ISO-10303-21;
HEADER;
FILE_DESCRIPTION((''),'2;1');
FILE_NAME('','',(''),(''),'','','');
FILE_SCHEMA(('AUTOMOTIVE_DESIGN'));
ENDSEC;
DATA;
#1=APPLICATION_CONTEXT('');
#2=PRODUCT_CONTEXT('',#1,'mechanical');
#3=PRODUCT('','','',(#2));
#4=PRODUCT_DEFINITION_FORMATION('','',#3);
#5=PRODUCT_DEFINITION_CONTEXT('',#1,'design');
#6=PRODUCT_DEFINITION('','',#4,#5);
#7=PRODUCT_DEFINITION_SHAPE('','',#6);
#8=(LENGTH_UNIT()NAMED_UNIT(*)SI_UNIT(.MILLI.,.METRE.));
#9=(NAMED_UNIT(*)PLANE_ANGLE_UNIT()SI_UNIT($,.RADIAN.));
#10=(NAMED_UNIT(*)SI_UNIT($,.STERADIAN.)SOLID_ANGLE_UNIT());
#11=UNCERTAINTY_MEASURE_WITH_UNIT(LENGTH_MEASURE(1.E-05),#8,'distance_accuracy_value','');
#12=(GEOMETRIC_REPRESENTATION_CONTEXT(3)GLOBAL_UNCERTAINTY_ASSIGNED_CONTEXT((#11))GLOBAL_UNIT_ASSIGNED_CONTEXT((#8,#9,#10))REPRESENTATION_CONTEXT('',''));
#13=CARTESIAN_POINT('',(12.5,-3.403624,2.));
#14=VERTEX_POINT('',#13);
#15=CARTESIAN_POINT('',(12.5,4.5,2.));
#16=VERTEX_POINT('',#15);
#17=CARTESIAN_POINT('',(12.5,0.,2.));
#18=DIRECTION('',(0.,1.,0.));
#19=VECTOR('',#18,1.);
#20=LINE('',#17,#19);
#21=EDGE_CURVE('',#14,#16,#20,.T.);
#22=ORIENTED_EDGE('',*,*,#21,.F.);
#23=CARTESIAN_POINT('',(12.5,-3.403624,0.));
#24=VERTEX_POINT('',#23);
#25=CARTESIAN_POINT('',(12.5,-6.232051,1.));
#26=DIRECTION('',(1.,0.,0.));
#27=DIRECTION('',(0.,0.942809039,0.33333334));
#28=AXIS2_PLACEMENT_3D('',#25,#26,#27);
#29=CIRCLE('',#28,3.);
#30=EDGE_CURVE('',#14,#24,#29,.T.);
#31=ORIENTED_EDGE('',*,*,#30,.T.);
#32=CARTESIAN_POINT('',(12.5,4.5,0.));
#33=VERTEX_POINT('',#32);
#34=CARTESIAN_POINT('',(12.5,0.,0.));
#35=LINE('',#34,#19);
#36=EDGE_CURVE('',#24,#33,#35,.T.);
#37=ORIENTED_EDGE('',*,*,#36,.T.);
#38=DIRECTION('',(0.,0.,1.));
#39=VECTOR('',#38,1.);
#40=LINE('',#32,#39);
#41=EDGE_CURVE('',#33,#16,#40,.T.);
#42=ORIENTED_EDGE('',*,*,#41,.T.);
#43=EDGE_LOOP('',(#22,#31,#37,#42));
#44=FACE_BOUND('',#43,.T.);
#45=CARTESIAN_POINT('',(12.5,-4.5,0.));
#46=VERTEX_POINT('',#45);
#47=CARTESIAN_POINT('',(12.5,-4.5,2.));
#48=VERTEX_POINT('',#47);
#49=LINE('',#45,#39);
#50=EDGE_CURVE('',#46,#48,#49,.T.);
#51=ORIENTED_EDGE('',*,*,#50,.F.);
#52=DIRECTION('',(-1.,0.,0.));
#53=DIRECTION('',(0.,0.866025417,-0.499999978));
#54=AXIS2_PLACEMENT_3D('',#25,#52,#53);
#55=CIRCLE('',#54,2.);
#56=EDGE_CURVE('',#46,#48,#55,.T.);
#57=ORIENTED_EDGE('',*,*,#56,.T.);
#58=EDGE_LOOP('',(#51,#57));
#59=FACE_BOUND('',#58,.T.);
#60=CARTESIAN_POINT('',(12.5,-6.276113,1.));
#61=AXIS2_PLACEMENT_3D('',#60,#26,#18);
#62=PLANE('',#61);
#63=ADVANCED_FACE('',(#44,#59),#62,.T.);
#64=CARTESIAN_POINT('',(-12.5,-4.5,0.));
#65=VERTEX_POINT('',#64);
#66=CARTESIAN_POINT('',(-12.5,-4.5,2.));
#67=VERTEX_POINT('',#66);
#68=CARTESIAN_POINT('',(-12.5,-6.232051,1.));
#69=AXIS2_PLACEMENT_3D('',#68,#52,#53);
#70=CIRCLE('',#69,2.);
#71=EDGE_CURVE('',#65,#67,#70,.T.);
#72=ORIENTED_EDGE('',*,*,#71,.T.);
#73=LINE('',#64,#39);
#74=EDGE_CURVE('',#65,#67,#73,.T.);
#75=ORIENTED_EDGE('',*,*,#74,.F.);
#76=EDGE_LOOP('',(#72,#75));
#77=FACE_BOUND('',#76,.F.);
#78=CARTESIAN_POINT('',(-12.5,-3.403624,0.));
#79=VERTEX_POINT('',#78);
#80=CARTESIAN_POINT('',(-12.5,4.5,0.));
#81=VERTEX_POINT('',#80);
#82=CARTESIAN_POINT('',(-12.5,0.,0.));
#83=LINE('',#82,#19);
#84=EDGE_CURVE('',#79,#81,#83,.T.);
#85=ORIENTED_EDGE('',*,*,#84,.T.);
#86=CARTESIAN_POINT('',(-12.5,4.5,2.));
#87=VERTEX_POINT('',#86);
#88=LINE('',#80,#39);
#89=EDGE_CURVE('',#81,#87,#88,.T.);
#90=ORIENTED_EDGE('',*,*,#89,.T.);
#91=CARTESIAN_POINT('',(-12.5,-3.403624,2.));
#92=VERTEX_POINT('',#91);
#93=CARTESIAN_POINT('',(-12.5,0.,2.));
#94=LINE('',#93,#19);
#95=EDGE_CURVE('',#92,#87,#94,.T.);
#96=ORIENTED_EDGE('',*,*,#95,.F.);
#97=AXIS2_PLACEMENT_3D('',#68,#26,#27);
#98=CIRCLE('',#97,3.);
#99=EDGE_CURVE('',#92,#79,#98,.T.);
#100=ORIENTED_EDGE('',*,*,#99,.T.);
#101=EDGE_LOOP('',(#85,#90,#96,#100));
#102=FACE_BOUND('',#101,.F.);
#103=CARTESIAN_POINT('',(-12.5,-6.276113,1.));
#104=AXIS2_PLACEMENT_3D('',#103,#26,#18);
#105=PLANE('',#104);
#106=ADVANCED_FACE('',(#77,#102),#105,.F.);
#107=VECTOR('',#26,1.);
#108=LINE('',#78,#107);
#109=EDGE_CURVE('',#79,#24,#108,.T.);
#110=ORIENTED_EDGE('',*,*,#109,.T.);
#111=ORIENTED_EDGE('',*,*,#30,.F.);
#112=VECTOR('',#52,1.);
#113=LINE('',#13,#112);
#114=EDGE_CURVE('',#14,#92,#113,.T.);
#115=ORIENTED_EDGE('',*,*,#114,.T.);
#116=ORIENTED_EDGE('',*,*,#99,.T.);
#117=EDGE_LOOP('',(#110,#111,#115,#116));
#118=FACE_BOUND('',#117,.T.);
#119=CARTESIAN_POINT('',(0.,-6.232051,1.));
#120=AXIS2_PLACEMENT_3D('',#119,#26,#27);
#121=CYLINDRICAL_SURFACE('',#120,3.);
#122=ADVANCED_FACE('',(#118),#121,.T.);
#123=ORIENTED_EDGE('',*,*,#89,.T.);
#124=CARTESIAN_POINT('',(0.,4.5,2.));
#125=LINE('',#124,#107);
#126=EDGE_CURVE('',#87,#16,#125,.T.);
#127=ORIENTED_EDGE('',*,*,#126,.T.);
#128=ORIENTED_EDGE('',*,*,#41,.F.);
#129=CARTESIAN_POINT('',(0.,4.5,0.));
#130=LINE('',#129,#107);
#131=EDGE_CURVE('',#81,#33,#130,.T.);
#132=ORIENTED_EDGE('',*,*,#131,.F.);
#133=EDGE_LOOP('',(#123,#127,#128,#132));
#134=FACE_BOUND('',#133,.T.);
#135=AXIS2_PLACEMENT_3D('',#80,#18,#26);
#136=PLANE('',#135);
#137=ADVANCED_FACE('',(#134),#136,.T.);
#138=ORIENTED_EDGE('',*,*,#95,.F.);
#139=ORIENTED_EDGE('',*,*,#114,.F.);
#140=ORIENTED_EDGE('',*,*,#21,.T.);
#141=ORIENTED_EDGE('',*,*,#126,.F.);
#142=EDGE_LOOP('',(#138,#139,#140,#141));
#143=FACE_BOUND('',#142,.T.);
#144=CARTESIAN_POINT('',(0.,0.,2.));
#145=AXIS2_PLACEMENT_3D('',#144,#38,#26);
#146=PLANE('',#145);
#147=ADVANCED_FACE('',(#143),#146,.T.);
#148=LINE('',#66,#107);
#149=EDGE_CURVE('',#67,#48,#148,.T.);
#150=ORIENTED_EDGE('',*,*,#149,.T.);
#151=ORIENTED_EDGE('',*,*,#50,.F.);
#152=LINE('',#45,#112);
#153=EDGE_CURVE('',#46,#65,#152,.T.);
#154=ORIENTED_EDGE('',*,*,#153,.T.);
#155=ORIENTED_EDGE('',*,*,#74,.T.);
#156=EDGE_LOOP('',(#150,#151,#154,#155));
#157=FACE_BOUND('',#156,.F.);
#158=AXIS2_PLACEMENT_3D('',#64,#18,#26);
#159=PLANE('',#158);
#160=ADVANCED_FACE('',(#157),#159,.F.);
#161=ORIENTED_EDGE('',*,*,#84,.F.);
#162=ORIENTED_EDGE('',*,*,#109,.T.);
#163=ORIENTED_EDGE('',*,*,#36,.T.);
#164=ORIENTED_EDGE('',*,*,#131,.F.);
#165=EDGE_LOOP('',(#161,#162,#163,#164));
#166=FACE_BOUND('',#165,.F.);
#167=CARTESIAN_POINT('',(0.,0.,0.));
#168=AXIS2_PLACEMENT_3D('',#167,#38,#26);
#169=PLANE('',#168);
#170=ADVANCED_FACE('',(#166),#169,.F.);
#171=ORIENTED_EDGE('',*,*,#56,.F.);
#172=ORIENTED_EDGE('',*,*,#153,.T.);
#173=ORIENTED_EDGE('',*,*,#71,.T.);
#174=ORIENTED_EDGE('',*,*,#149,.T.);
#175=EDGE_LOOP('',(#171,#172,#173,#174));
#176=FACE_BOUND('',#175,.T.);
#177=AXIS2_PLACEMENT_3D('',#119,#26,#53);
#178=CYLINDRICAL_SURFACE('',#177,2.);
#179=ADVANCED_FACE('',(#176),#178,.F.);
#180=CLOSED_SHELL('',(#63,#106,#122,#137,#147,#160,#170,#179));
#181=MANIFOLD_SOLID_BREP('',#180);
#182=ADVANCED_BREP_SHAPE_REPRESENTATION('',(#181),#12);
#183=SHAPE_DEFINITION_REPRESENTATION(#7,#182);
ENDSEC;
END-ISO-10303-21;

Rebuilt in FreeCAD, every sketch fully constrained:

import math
import FreeCAD as App
import Part
import Sketcher
from FreeCAD import Vector
Q = App.Units.Quantity

doc = App.newDocument("Part")
body = doc.addObject("PartDesign::Body", "Body")

# Sketch on XY plane
sketch1 = body.newObject("Sketcher::SketchObject", "Sketch")
sketch1.AttachmentSupport = (doc.getObject("XY_Plane"), [""])
sketch1.MapMode = "FlatFace"
sketch1.addGeometry(Part.LineSegment(Vector(-12, 4, 0), Vector(-12, -4, 0)), False)
sketch1.addGeometry(Part.LineSegment(Vector(-12, -4, 0), Vector(12, -4, 0)), False)
sketch1.addGeometry(Part.LineSegment(Vector(12, -4, 0), Vector(12, 4, 0)), False)
sketch1.addGeometry(Part.LineSegment(Vector(12, 4, 0), Vector(-12, 4, 0)), False)
sketch1.addConstraint(Sketcher.Constraint("Coincident", 0, 2, 1, 1))
sketch1.addConstraint(Sketcher.Constraint("Coincident", 1, 2, 2, 1))
sketch1.addConstraint(Sketcher.Constraint("Coincident", 2, 2, 3, 1))
sketch1.addConstraint(Sketcher.Constraint("Coincident", 3, 2, 0, 1))
sketch1.addConstraint(Sketcher.Constraint("Vertical", 0))
sketch1.addConstraint(Sketcher.Constraint("Horizontal", 1))
sketch1.addConstraint(Sketcher.Constraint("Vertical", 2))
sketch1.addConstraint(Sketcher.Constraint("Horizontal", 3))
sketch1.addConstraint(Sketcher.Constraint("Symmetric", 0, 2, 2, 2, -1, 1))
sketch1.addConstraint(Sketcher.Constraint("DistanceX", 1, 1, 1, 2, Q("25 mm")))
sketch1.addConstraint(Sketcher.Constraint("DistanceY", 0, 2, 0, 1, Q("9 mm")))
pad1 = body.newObject("PartDesign::Pad", "Pad")
pad1.Profile = sketch1
pad1.Length = 2

# Sketch on YZ plane
sketch2 = body.newObject("Sketcher::SketchObject", "Sketch001")
sketch2.AttachmentSupport = (doc.getObject("YZ_Plane"), [""])
sketch2.MapMode = "FlatFace"
sketch2.addGeometry(Part.LineSegment(Vector(-4.5, 2, 0), Vector(-3.4, 2, 0)), False)
sketch2.addGeometry(Part.ArcOfCircle(Part.Circle(Vector(-6.2, 1, 0), Vector(0, 0, 1), 3), math.radians(19), math.radians(341)), False)
sketch2.addGeometry(Part.LineSegment(Vector(-3.4, 0, 0), Vector(-4.5, 0, 0)), False)
sketch2.addGeometry(Part.ArcOfCircle(Part.Circle(Vector(-6.2, 1, 0), Vector(0, 0, 1), 2), math.radians(30), math.radians(330)), False)
sketch2.addConstraint(Sketcher.Constraint("Coincident", 0, 2, 1, 1))
sketch2.addConstraint(Sketcher.Constraint("Coincident", 1, 2, 2, 1))
sketch2.addConstraint(Sketcher.Constraint("Coincident", 2, 2, 3, 2))
sketch2.addConstraint(Sketcher.Constraint("Coincident", 3, 1, 0, 1))
sketch2.addConstraint(Sketcher.Constraint("Horizontal", 0))
sketch2.addConstraint(Sketcher.Constraint("Horizontal", 2))
sketch2.addConstraint(Sketcher.Constraint("Coincident", 3, 3, 1, 3))
sketch2.addConstraint(Sketcher.Constraint("PointOnObject", 1, 2, -1))
sketch2.addConstraint(Sketcher.Constraint("Vertical", 0, 2, 1, 2))
sketch2.addConstraint(Sketcher.Constraint("Radius", 1, Q("3 mm")))
sketch2.addConstraint(Sketcher.Constraint("Radius", 3, Q("2 mm")))
sketch2.addConstraint(Sketcher.Constraint("DistanceY", -1, 1, 1, 3, Q("1 mm")))
sketch2.addConstraint(Sketcher.Constraint("DistanceX", 2, 2, -1, 1, Q("4.5 mm")))
pad2 = body.newObject("PartDesign::Pad", "Pad001")
pad2.Profile = sketch2
pad2.Type = "TwoLengths"
pad2.Length = 12.5
pad2.Length2 = 12.5

doc.recompute()
